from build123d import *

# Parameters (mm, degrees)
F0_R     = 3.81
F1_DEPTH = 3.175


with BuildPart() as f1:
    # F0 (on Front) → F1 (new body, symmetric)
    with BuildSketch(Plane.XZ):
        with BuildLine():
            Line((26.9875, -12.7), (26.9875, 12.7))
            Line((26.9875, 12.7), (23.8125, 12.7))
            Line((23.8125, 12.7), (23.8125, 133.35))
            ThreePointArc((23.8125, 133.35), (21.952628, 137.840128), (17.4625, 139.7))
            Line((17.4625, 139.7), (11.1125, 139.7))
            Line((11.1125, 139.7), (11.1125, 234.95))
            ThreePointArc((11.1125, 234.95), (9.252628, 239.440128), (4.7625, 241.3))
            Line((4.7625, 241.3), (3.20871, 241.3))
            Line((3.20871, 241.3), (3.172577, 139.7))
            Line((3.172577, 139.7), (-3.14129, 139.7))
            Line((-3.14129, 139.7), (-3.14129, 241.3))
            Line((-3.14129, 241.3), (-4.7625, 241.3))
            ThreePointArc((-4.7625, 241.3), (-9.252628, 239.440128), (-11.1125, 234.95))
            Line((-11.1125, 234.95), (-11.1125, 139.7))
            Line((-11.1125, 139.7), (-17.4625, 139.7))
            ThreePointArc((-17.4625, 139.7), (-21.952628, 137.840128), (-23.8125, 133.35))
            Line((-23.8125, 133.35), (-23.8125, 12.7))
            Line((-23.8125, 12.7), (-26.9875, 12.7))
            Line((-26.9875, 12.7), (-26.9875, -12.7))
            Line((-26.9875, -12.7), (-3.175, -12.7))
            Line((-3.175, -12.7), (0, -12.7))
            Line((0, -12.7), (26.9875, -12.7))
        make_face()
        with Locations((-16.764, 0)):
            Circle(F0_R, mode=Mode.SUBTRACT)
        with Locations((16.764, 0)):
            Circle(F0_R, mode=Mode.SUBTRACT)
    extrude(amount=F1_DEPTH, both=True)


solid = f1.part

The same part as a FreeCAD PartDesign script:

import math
import FreeCAD as App
import Part
import Sketcher

V = App.Vector
Q = App.Units.Quantity

doc = App.newDocument("Part")
body = doc.addObject("PartDesign::Body", "Body")

# Sketch on XZ plane
sketch1 = doc.addObject("Sketcher::SketchObject", "Sketch")
body.addObject(sketch1)
sketch1.AttachmentSupport = (doc.XZ_Plane, [""])
sketch1.MapMode = "FlatFace"
sketch1.addGeometry([
    Part.LineSegment(V(27, -12.7, 0), V(27, 12.7, 0)),  # 0
    Part.LineSegment(V(27, 12.7, 0), V(23.8, 12.7, 0)),  # 1
    Part.LineSegment(V(23.8, 12.7, 0), V(23.8, 133.3, 0)),  # 2
    Part.ArcOfCircle(Part.Circle(V(17.5, 133.3, 0), V(0, 0, 1), 6.4), math.radians(0), math.radians(90)),  # 3
    Part.LineSegment(V(17.5, 139.7, 0), V(11.1, 139.7, 0)),  # 4
    Part.LineSegment(V(11.1, 139.7, 0), V(11.1, 234.9, 0)),  # 5
    Part.ArcOfCircle(Part.Circle(V(4.8, 234.9, 0), V(0, 0, 1), 6.4), math.radians(0), math.radians(90)),  # 6
    Part.LineSegment(V(4.8, 241.3, 0), V(3.2, 241.3, 0)),  # 7
    Part.LineSegment(V(3.2, 241.3, 0), V(3.2, 139.7, 0)),  # 8
    Part.LineSegment(V(3.2, 139.7, 0), V(-3.1, 139.7, 0)),  # 9
    Part.LineSegment(V(-3.1, 139.7, 0), V(-3.1, 241.3, 0)),  # 10
    Part.LineSegment(V(-3.1, 241.3, 0), V(-4.8, 241.3, 0)),  # 11
    Part.ArcOfCircle(Part.Circle(V(-4.8, 234.9, 0), V(0, 0, 1), 6.4), math.radians(90), math.radians(180)),  # 12
    Part.LineSegment(V(-11.1, 234.9, 0), V(-11.1, 139.7, 0)),  # 13
    Part.LineSegment(V(-11.1, 139.7, 0), V(-17.5, 139.7, 0)),  # 14
    Part.ArcOfCircle(Part.Circle(V(-17.5, 133.3, 0), V(0, 0, 1), 6.4), math.radians(90), math.radians(180)),  # 15
    Part.LineSegment(V(-23.8, 133.3, 0), V(-23.8, 12.7, 0)),  # 16
    Part.LineSegment(V(-23.8, 12.7, 0), V(-27, 12.7, 0)),  # 17
    Part.LineSegment(V(-27, 12.7, 0), V(-27, -12.7, 0)),  # 18
    Part.LineSegment(V(-27, -12.7, 0), V(27, -12.7, 0)),  # 19
    Part.Circle(V(-16.8, 0, 0), V(0, 0, 1), 3.8),  # 20
    Part.Circle(V(16.8, 0, 0), V(0, 0, 1), 3.8),  # 21
], False)
sketch1.addConstraint([
    Sketcher.Constraint("Coincident", 0, 2, 1, 1),
    Sketcher.Constraint("Coincident", 1, 2, 2, 1),
    Sketcher.Constraint("Tangent", 2, 2, 3, 1),
    Sketcher.Constraint("Tangent", 3, 2, 4, 1),
    Sketcher.Constraint("Coincident", 4, 2, 5, 1),
    Sketcher.Constraint("Tangent", 5, 2, 6, 1),
    Sketcher.Constraint("Tangent", 6, 2, 7, 1),
    Sketcher.Constraint("Coincident", 7, 2, 8, 1),
    Sketcher.Constraint("Coincident", 8, 2, 9, 1),
    Sketcher.Constraint("Coincident", 9, 2, 10, 1),
    Sketcher.Constraint("Coincident", 10, 2, 11, 1),
    Sketcher.Constraint("Tangent", 11, 2, 12, 1),
    Sketcher.Constraint("Tangent", 12, 2, 13, 1),
    Sketcher.Constraint("Coincident", 13, 2, 14, 1),
    Sketcher.Constraint("Tangent", 14, 2, 15, 1),
    Sketcher.Constraint("Tangent", 15, 2, 16, 1),
    Sketcher.Constraint("Coincident", 16, 2, 17, 1),
    Sketcher.Constraint("Coincident", 17, 2, 18, 1),
    Sketcher.Constraint("Coincident", 18, 2, 19, 1),
    Sketcher.Constraint("Coincident", 19, 2, 0, 1),
    Sketcher.Constraint("Vertical", 0),
    Sketcher.Constraint("Horizontal", 1),
    Sketcher.Constraint("Vertical", 2),
    Sketcher.Constraint("Horizontal", 4),
    Sketcher.Constraint("Vertical", 5),
    Sketcher.Constraint("Horizontal", 7),
    Sketcher.Constraint("Horizontal", 9),
    Sketcher.Constraint("Vertical", 10),
    Sketcher.Constraint("Horizontal", 11),
    Sketcher.Constraint("Vertical", 13),
    Sketcher.Constraint("Horizontal", 14),
    Sketcher.Constraint("Vertical", 16),
    Sketcher.Constraint("Horizontal", 17),
    Sketcher.Constraint("Vertical", 18),
    Sketcher.Constraint("Horizontal", 19),
    Sketcher.Constraint("Equal", 3, 6),
    Sketcher.Constraint("Equal", 6, 12),
    Sketcher.Constraint("Equal", 12, 15),
    Sketcher.Constraint("Equal", 20, 21),
    Sketcher.Constraint("Symmetric", 20, 3, 21, 3, -1, 1),
    Sketcher.Constraint("Symmetric", 0, 2, 18, 2, -1, 1),
    Sketcher.Constraint("Symmetric", 6, 3, 12, 3, -2),
    Sketcher.Constraint("Symmetric", 3, 3, 15, 3, -2),
    Sketcher.Constraint("PointOnObject", 20, 3, -1),
    Sketcher.Constraint("Horizontal", 4, 2, 8, 2),
    Sketcher.Constraint("Horizontal", 1, 2, 16, 2),
    Sketcher.Constraint("Diameter", 20, Q("0.3 in")),
    Sketcher.Constraint("DistanceY", 0, 1, 0, 2, Q("1 in")),
    Sketcher.Constraint("DistanceY", 10, 1, 10, 2, Q("4 in")),
    Sketcher.Constraint("Radius", 3, Q("0.25 in")),
    Sketcher.Constraint("DistanceX", 16, 2, 0, 2, Q("2 in")),
    Sketcher.Constraint("DistanceX", 4, 2, 4, 1, Q("0.25 in")),
    Sketcher.Constraint("DistanceY", 2, 1, 2, 2, Q("4.75 in")),
    Sketcher.Constraint("DistanceX", 1, 2, 1, 1, Q("0.125 in")),
    Sketcher.Constraint("DistanceX", 20, 3, -1, 1, Q("0.66 in")),
    Sketcher.Constraint("DistanceX", 10, 2, 7, 2, Q("0.25 in")),
    Sketcher.Constraint("DistanceX", 7, 2, 7, 1, Q("1.55379 mm")),
    Sketcher.Constraint("DistanceX", 9, 2, 9, 1, Q("6.313867 mm")),
])
pad1 = doc.addObject("PartDesign::Pad", "Pad")
body.addObject(pad1)
pad1.Profile = sketch1
pad1.Length = Q("0.25 in")
pad1.Midplane = True

doc.recompute()
